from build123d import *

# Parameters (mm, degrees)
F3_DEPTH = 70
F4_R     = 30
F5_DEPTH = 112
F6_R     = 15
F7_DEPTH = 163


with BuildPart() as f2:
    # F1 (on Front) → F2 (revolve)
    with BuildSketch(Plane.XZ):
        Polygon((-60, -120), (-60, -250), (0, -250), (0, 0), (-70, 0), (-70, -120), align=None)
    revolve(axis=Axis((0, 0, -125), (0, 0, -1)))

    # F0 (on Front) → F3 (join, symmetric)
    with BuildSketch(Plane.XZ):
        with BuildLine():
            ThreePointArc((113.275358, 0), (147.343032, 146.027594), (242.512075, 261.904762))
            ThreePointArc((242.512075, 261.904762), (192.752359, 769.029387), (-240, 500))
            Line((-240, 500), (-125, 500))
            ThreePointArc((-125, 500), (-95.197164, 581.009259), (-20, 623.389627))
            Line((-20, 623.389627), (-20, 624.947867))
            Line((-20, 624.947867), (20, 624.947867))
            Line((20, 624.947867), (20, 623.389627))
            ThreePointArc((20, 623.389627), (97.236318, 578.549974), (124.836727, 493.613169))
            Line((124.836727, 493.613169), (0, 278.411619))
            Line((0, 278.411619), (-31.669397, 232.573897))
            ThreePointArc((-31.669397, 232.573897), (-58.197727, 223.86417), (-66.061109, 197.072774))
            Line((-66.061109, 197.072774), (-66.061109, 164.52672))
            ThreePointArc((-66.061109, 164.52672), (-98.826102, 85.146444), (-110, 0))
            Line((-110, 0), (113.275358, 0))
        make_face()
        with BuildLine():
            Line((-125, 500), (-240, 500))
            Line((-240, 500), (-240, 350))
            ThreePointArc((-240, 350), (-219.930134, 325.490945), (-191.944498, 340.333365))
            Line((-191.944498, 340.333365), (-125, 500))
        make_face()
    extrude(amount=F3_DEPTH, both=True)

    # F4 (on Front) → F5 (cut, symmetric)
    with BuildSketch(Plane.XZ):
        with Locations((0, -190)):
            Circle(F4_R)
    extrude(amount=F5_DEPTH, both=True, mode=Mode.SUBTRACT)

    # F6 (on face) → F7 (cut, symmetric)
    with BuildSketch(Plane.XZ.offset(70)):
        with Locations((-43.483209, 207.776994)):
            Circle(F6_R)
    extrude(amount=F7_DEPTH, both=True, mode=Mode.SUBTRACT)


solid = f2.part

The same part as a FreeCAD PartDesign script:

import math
import FreeCAD as App
import Part
import Sketcher
from FreeCAD import Vector


def add_polygon(sketch, points):
    """Adds a closed chain of lines whose ends are joined by coincident constraints."""
    first, n = sketch.GeometryCount, len(points)
    for a, b in zip(points, points[1:] + points[:1]):
        sketch.addGeometry(Part.LineSegment(App.Vector(*a, 0), App.Vector(*b, 0)), False)
    for i in range(n):
        sketch.addConstraint(Sketcher.Constraint("Coincident", first + i, 2, first + (i + 1) % n, 1))

doc = App.newDocument("Part")
body = doc.addObject("PartDesign::Body", "Body")

# Sketch on XZ plane
sketch1 = doc.addObject("Sketcher::SketchObject", "Sketch")
body.addObject(sketch1)
sketch1.AttachmentSupport = (doc.XZ_Plane, [""])
sketch1.MapMode = "FlatFace"
add_polygon(sketch1, [(-60, -120), (-60, -250), (0, -250), (0, 0), (-70, 0), (-70, -120)])  # lines 0-5
sketch1.addConstraint(Sketcher.Constraint("Vertical", 0))
sketch1.addConstraint(Sketcher.Constraint("Horizontal", 1))
sketch1.addConstraint(Sketcher.Constraint("Vertical", 2))
sketch1.addConstraint(Sketcher.Constraint("Horizontal", 3))
sketch1.addConstraint(Sketcher.Constraint("Vertical", 4))
sketch1.addConstraint(Sketcher.Constraint("Horizontal", 5))
sketch1.addConstraint(Sketcher.Constraint("Coincident", 2, 2, -1, 1))
sketch1.addConstraint(Sketcher.Constraint("DistanceX", 1, 1, 1, 2, 60.0))
sketch1.addConstraint(Sketcher.Constraint("DistanceX", 3, 2, 3, 1, 70.0))
sketch1.addConstraint(Sketcher.Constraint("DistanceY", 0, 2, 0, 1, 130.0))
sketch1.addConstraint(Sketcher.Constraint("DistanceY", 2, 1, 2, 2, 250.0))
revolution = doc.addObject("PartDesign::Revolution", "Revolution")
body.addObject(revolution)
revolution.Profile = sketch1
revolution.ReferenceAxis = (sketch1, ["V_Axis"])
revolution.Angle = 360

# Sketch on XZ plane
sketch2 = doc.addObject("Sketcher::SketchObject", "Sketch001")
body.addObject(sketch2)
sketch2.AttachmentSupport = (doc.XZ_Plane, [""])
sketch2.MapMode = "FlatFace"
sketch2.addGeometry(Part.ArcOfCircle(Part.Circle(Vector(443.275362, -0.000002, 0), Vector(0, 0, 1), 330.000004), math.radians(127.471996), math.radians(180)), False)
sketch2.addGeometry(Part.ArcOfCircle(Part.Circle(Vector(60, 500, 0), Vector(0, 0, 1), 300), math.radians(-52.528005), math.radians(180)), False)
sketch2.addGeometry(Part.LineSegment(Vector(-240, 500, 0), Vector(-240, 350, 0)), False)
sketch2.addGeometry(Part.ArcOfCircle(Part.Circle(Vector(-215, 350, 0), Vector(0, 0, 1), 25), math.radians(-180), math.radians(-22.747169)), False)
sketch2.addGeometry(Part.LineSegment(Vector(-191.944498, 340.333365, 0), Vector(-125, 500, 0)), False)
sketch2.addGeometry(Part.ArcOfCircle(Part.Circle(Vector(-0.000001, 500.000001, 0), Vector(0, 0, 1), 124.999999), math.radians(99.206896), math.radians(180)), False)
sketch2.addGeometry(Part.LineSegment(Vector(-20, 623.389627, 0), Vector(-20, 624.947867, 0)), False)
sketch2.addGeometry(Part.LineSegment(Vector(-20, 624.947867, 0), Vector(20, 624.947867, 0)), False)
sketch2.addGeometry(Part.LineSegment(Vector(20, 624.947867, 0), Vector(20, 623.389627, 0)), False)
sketch2.addGeometry(Part.ArcOfCircle(Part.Circle(Vector(-0.000001, 499.999999, 0), Vector(0, 0, 1), 125.000001), math.radians(-2.928783), math.radians(80.793103)), False)
sketch2.addGeometry(Part.LineSegment(Vector(124.836727, 493.613169, 0), Vector(0, 278.411619, 0)), False)
sketch2.addGeometry(Part.LineSegment(Vector(0, 278.411619, 0), Vector(-31.669397, 232.573897, 0)), False)
sketch2.addGeometry(Part.ArcOfCircle(Part.Circle(Vector(-36.65052, 202.990314, 0), Vector(0, 0, 1), 30), math.radians(80.442493), math.radians(191.376269)), False)
sketch2.addGeometry(Part.LineSegment(Vector(-66.061109, 197.072774, 0), Vector(-66.061109, 164.52672, 0)), False)
sketch2.addGeometry(Part.ArcOfCircle(Part.Circle(Vector(219.999982, 0.000004, 0), Vector(0, 0, 1), 329.999982), math.radians(150.094838), math.radians(180.000001)), False)
sketch2.addGeometry(Part.LineSegment(Vector(-110, 0, 0), Vector(113.275358, 0, 0)), False)
sketch2.addConstraint(Sketcher.Constraint("Tangent", 0, 1, 1, 1))
sketch2.addConstraint(Sketcher.Constraint("Tangent", 1, 2, 2, 1))
sketch2.addConstraint(Sketcher.Constraint("Tangent", 2, 2, 3, 1))
sketch2.addConstraint(Sketcher.Constraint("Tangent", 3, 2, 4, 1))
sketch2.addConstraint(Sketcher.Constraint("Coincident", 4, 2, 5, 2))
sketch2.addConstraint(Sketcher.Constraint("Coincident", 5, 1, 6, 1))
sketch2.addConstraint(Sketcher.Constraint("Coincident", 6, 2, 7, 1))
sketch2.addConstraint(Sketcher.Constraint("Coincident", 7, 2, 8, 1))
sketch2.addConstraint(Sketcher.Constraint("Coincident", 8, 2, 9, 2))
sketch2.addConstraint(Sketcher.Constraint("Coincident", 9, 1, 10, 1))
sketch2.addConstraint(Sketcher.Constraint("Coincident", 10, 2, 11, 1))
sketch2.addConstraint(Sketcher.Constraint("Coincident", 11, 2, 12, 1))
sketch2.addConstraint(Sketcher.Constraint("Coincident", 12, 2, 13, 1))
sketch2.addConstraint(Sketcher.Constraint("Coincident", 13, 2, 14, 1))
sketch2.addConstraint(Sketcher.Constraint("Coincident", 14, 2, 15, 1))
sketch2.addConstraint(Sketcher.Constraint("Coincident", 15, 2, 0, 2))
sketch2.addConstraint(Sketcher.Constraint("Vertical", 2))
sketch2.addConstraint(Sketcher.Constraint("Vertical", 6))
sketch2.addConstraint(Sketcher.Constraint("Horizontal", 7))
sketch2.addConstraint(Sketcher.Constraint("Vertical", 8))
sketch2.addConstraint(Sketcher.Constraint("Vertical", 13))
sketch2.addConstraint(Sketcher.Constraint("Horizontal", 15))
sketch2.addConstraint(Sketcher.Constraint("Coincident", 9, 3, 5, 3))
sketch2.addConstraint(Sketcher.Constraint("Equal", 5, 9))
sketch2.addConstraint(Sketcher.Constraint("Symmetric", 5, 1, 8, 2, -2))
sketch2.addConstraint(Sketcher.Constraint("PointOnObject", 0, 3, -1))
sketch2.addConstraint(Sketcher.Constraint("PointOnObject", 10, 2, -2))
sketch2.addConstraint(Sketcher.Constraint("PointOnObject", 14, 2, -1))
sketch2.addConstraint(Sketcher.Constraint("Horizontal", 1, 3, 5, 3))
sketch2.addConstraint(Sketcher.Constraint("Horizontal", 1, 2, 4, 2))
sketch2.addConstraint(Sketcher.Constraint("Radius", 1, 300.0))
sketch2.addConstraint(Sketcher.Constraint("Radius", 3, 25.0))
sketch2.addConstraint(Sketcher.Constraint("Radius", 5, 124.999999))
sketch2.addConstraint(Sketcher.Constraint("Radius", 12, 30.0))
sketch2.addConstraint(Sketcher.Constraint("DistanceX", 7, 1, 7, 2, 40.0))
sketch2.addConstraint(Sketcher.Constraint("DistanceY", 2, 2, 2, 1, 150.0))
sketch2.addConstraint(Sketcher.Constraint("DistanceX", -1, 1, 1, 3, 60.0))
sketch2.addConstraint(Sketcher.Constraint("DistanceY", -1, 1, 1, 3, 500.0))
sketch2.addConstraint(Sketcher.Constraint("DistanceX", 14, 2, -1, 1, 110.0))
sketch2.addConstraint(Sketcher.Constraint("Radius", 0, 330.000004))
sketch2.addConstraint(Sketcher.Constraint("Radius", 14, 329.999982))
sketch2.addConstraint(Sketcher.Constraint("DistanceY", 6, 1, 6, 2, 1.55824))
sketch2.addConstraint(Sketcher.Constraint("DistanceY", 9, 1, 7, 2, 131.334698))
sketch2.addConstraint(Sketcher.Constraint("DistanceX", 3, 2, 11, 2, 160.275101))
sketch2.addConstraint(Sketcher.Constraint("DistanceY", 13, 2, 10, 2, 113.884899))
sketch2.addConstraint(Sketcher.Constraint("Distance", 11, 55.713979))
sketch2.addConstraint(Sketcher.Constraint("DistanceY", 13, 2, 13, 1, 32.546054))
sketch2.addConstraint(Sketcher.Constraint("DistanceX", 12, 3, -1, 1, 36.65052))
sketch2.addConstraint(Sketcher.Constraint("DistanceY", -1, 1, 10, 2, 278.411619))
pad1 = doc.addObject("PartDesign::Pad", "Pad")
body.addObject(pad1)
pad1.Profile = sketch2
pad1.Length = 140
pad1.Midplane = True

# Sketch on XZ plane
sketch3 = doc.addObject("Sketcher::SketchObject", "Sketch002")
body.addObject(sketch3)
sketch3.AttachmentSupport = (doc.XZ_Plane, [""])
sketch3.MapMode = "FlatFace"
sketch3.addGeometry(Part.Circle(Vector(0, -190, 0), Vector(0, 0, 1), 30), False)
sketch3.addConstraint(Sketcher.Constraint("PointOnObject", 0, 3, -2))
sketch3.addConstraint(Sketcher.Constraint("Diameter", 0, 60.0))
sketch3.addConstraint(Sketcher.Constraint("DistanceY", 0, 3, -1, 1, 190.0))
pocket1 = doc.addObject("PartDesign::Pocket", "Pocket")
body.addObject(pocket1)
pocket1.Profile = sketch3
pocket1.Length = 224
pocket1.Midplane = True

# Sketch on XZ plane
sketch4 = doc.addObject("Sketcher::SketchObject", "Sketch003")
body.addObject(sketch4)
sketch4.AttachmentSupport = (doc.XZ_Plane, [""])
sketch4.MapMode = "FlatFace"
sketch4.AttachmentOffset = App.Placement(Vector(0, 0, 70), App.Rotation())
sketch4.addGeometry(Part.Circle(Vector(-43.483209, 207.776994, 0), Vector(0, 0, 1), 15), False)
sketch4.addConstraint(Sketcher.Constraint("Diameter", 0, 30.0))
sketch4.addConstraint(Sketcher.Constraint("DistanceX", 0, 3, -1, 1, 43.483209))
sketch4.addConstraint(Sketcher.Constraint("DistanceY", -1, 1, 0, 3, 207.776994))
pocket2 = doc.addObject("PartDesign::Pocket", "Pocket001")
body.addObject(pocket2)
pocket2.Profile = sketch4
pocket2.Length = 326
pocket2.Midplane = True

doc.recompute()
